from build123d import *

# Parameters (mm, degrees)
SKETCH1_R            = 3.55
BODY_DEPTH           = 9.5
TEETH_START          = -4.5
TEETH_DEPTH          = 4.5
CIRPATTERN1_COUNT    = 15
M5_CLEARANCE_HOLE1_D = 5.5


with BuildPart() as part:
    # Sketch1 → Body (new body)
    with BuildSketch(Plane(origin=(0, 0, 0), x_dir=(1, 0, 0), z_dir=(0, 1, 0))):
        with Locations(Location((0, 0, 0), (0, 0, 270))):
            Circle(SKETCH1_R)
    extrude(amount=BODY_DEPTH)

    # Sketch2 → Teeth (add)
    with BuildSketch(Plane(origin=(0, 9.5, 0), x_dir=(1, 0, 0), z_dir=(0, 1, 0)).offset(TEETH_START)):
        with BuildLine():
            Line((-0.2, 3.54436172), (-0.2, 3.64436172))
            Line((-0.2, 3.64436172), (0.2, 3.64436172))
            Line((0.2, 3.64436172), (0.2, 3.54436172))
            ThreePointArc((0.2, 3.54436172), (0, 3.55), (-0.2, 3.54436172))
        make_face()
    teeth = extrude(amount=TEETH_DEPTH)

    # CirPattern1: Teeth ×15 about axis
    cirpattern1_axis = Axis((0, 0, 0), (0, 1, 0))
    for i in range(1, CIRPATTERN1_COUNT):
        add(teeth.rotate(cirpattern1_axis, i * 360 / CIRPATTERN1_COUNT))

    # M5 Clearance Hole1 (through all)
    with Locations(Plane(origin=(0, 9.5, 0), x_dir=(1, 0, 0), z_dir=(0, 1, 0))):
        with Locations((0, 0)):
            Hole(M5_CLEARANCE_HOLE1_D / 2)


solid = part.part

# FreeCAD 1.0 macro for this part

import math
import FreeCAD as App
import Part
import Sketcher
from FreeCAD import Vector

doc = App.newDocument("Part")
params = doc.addObject("Spreadsheet::Sheet", "Params")
for row, (alias, value) in enumerate([
    ("sketch1_diameter", "7.1 mm"),
    ("pad1_length", "9.5 mm"),
    ("sketch2_radius", "3.55 mm"),
    ("sketch2_width", "0.4 mm"),
    ("sketch2_height", "0.1 mm"),
    ("pad2_length", "4.5 mm"),
    ("sketch3_diameter", "5.5 mm"),
    ("hole_diameter", "5.5 mm"),
], start=1):
    params.set(f"A{row}", alias)
    params.set(f"B{row}", "=" + value)
    params.setAlias(f"B{row}", alias)

body = doc.addObject("PartDesign::Body", "Body")

sketch1 = body.newObject("Sketcher::SketchObject", "Sketch")
sketch1.AttachmentSupport = (doc.getObject("XZ_Plane"), [""])
sketch1.MapMode = "FlatFace"
sketch1.addGeometry(Part.Circle(Vector(0, 0, 0), Vector(0, 0, 1), 3.5), False)
sketch1.addConstraint([
    Sketcher.Constraint("Coincident", 0, 3, -1, 1),
    Sketcher.Constraint("Diameter", 0, 7.1),
])
sketch1.setExpression("Constraints[1]", "Params.sketch1_diameter")
pad1 = body.newObject("PartDesign::Pad", "Pad")
pad1.Profile = sketch1
pad1.setExpression("Length", "Params.pad1_length")
pad1.Reversed = True

sketch2 = body.newObject("Sketcher::SketchObject", "Sketch001")
sketch2.AttachmentSupport = (doc.getObject("XZ_Plane"), [""])
sketch2.MapMode = "FlatFace"
sketch2.AttachmentOffset = App.Placement(Vector(0, 0, -5), App.Rotation())
sketch2.addGeometry([
    Part.LineSegment(Vector(-0.2, -3.64, 0), Vector(-0.2, -3.54, 0)),
    Part.ArcOfCircle(Part.Circle(Vector(0, 0, 0), Vector(0, 0, 1), 3.55), math.radians(-93.23), math.radians(-86.77)),
    Part.LineSegment(Vector(0.2, -3.54, 0), Vector(0.2, -3.64, 0)),
    Part.LineSegment(Vector(0.2, -3.64, 0), Vector(-0.2, -3.64, 0)),
], False)
sketch2.addConstraint([
    Sketcher.Constraint("Coincident", 0, 2, 1, 1),
    Sketcher.Constraint("Coincident", 1, 2, 2, 1),
    Sketcher.Constraint("Coincident", 2, 2, 3, 1),
    Sketcher.Constraint("Coincident", 3, 2, 0, 1),
    Sketcher.Constraint("Vertical", 0),
    Sketcher.Constraint("Vertical", 2),
    Sketcher.Constraint("Horizontal", 3),
    Sketcher.Constraint("Coincident", 1, 3, -1, 1),
    Sketcher.Constraint("Horizontal", 0, 2, 1, 2),
    Sketcher.Constraint("Radius", 1, 3.55),
    Sketcher.Constraint("DistanceX", 3, 2, 3, 1, 0.4),
    Sketcher.Constraint("DistanceY", 0, 1, 0, 2, 0.1),
])
sketch2.setExpression("Constraints[9]", "Params.sketch2_radius")
sketch2.setExpression("Constraints[10]", "Params.sketch2_width")
sketch2.setExpression("Constraints[11]", "Params.sketch2_height")
pad2 = body.newObject("PartDesign::Pad", "Pad001")
pad2.Profile = sketch2
pad2.setExpression("Length", "Params.pad2_length")
pad2.Reversed = True
doc.recompute()

polarpattern = body.newObject("PartDesign::PolarPattern", "PolarPattern")
polarpattern.Originals = [pad2]
polarpattern.Axis = (doc.getObject("Y_Axis"), [""])
polarpattern.Angle = 360
polarpattern.Occurrences = 15
body.Tip = polarpattern

sketch3 = body.newObject("Sketcher::SketchObject", "Sketch002")
sketch3.AttachmentSupport = (doc.getObject("XZ_Plane"), [""])
sketch3.MapMode = "FlatFace"
sketch3.AttachmentOffset = App.Placement(Vector(0, 0, -9.5), App.Rotation())
sketch3.addGeometry(Part.Circle(Vector(0, 0, 0), Vector(0, 0, 1), 2.8), False)
sketch3.addConstraint([
    Sketcher.Constraint("Coincident", 0, 3, -1, 1),
    Sketcher.Constraint("Diameter", 0, 5.5),
])
sketch3.setExpression("Constraints[1]", "Params.sketch3_diameter")
doc.recompute()
hole = body.newObject("PartDesign::Hole", "Hole")
hole.Profile = sketch3
hole.ThreadType = "None"
hole.setExpression("Diameter", "Params.hole_diameter")
hole.DepthType = "ThroughAll"
hole.Reversed = True

doc.recompute()
